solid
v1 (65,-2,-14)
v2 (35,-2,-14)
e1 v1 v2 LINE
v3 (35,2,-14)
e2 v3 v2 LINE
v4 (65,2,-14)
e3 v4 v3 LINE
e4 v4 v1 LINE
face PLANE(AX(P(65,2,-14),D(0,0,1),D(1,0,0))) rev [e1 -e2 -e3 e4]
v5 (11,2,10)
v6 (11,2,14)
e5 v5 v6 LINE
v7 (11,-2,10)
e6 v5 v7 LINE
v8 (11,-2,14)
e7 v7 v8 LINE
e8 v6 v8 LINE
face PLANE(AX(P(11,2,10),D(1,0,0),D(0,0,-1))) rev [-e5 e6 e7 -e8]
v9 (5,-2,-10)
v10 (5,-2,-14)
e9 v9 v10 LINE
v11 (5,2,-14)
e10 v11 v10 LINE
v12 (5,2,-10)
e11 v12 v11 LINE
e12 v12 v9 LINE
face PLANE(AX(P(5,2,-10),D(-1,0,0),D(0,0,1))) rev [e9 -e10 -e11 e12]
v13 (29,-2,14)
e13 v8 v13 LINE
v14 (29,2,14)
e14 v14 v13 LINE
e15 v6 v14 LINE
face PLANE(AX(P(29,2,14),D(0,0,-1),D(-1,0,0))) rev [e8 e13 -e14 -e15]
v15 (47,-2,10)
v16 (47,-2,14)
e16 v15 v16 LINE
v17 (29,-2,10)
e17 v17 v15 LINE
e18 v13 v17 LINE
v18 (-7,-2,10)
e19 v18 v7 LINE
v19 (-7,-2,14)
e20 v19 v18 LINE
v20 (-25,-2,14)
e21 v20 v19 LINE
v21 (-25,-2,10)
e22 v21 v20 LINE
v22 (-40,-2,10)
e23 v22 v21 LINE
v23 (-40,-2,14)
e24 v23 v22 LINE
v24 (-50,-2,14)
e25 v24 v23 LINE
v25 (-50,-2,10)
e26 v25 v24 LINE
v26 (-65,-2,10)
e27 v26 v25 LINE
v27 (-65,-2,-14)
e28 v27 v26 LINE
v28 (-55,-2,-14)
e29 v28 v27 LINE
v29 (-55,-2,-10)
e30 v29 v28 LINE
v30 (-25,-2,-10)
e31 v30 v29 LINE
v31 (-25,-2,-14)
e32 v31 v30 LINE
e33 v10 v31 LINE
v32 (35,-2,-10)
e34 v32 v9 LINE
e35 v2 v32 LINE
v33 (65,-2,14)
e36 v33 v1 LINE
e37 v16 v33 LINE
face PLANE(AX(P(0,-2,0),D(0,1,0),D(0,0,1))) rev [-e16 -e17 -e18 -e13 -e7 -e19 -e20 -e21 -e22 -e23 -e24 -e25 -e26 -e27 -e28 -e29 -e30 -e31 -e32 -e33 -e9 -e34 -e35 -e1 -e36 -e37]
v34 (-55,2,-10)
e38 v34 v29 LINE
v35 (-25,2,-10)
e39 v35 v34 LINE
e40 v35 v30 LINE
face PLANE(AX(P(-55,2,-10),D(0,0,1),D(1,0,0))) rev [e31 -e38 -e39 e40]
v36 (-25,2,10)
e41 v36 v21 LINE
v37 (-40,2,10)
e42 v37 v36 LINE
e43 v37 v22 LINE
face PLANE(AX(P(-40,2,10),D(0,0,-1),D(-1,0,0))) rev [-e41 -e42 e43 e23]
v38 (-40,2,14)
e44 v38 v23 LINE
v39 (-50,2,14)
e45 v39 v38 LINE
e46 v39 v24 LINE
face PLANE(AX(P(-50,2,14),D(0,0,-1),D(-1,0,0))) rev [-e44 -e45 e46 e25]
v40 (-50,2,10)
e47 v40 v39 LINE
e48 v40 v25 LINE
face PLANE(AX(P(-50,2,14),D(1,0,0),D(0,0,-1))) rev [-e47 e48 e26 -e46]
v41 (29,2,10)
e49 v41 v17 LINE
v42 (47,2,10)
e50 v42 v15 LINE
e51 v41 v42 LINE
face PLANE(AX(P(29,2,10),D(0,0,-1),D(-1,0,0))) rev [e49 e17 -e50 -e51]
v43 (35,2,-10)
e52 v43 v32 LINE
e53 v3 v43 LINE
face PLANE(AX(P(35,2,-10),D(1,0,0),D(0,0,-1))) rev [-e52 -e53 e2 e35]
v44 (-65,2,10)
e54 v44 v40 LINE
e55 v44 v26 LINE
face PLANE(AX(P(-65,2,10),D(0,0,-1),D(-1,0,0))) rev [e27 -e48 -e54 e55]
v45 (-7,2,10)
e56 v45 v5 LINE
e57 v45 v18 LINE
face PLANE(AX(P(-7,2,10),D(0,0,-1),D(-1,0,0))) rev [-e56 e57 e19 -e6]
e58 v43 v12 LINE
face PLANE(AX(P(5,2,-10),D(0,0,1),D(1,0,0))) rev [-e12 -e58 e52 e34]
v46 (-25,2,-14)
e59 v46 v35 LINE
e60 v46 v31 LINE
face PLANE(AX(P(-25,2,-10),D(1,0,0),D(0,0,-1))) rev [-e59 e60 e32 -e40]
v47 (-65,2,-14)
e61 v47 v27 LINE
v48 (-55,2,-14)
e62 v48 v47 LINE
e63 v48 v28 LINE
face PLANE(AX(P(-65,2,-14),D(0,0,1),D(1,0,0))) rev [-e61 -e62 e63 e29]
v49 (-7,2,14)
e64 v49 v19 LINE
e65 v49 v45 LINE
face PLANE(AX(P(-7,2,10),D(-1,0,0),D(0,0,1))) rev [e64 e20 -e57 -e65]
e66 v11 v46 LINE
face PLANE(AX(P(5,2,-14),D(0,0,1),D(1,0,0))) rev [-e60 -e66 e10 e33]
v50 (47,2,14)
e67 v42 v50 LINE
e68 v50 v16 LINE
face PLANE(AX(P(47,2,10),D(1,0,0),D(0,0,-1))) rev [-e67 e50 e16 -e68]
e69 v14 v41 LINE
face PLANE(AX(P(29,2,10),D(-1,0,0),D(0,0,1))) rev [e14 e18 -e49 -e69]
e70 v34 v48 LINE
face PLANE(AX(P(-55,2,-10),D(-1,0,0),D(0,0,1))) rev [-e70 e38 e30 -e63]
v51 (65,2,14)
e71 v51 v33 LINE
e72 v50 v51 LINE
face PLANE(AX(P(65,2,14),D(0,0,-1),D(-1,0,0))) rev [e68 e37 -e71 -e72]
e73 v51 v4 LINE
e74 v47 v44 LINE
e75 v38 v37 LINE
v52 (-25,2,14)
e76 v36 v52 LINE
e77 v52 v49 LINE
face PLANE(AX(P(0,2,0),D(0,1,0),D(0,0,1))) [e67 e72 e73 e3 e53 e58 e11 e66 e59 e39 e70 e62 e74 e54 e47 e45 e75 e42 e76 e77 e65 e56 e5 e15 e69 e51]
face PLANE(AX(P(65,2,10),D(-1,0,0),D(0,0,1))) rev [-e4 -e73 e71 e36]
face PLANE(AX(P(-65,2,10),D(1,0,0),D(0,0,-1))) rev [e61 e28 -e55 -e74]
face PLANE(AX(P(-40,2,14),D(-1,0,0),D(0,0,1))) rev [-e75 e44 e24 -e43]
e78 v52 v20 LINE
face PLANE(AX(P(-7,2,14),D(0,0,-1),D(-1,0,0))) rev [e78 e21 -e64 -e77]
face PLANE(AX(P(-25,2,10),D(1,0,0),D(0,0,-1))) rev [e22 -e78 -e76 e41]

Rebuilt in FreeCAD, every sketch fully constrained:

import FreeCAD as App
import Part
import Sketcher

doc = App.newDocument("Part")
body = doc.addObject("PartDesign::Body", "Body")

sketch1 = body.newObject("Sketcher::SketchObject", "Sketch")
sketch1.AttachmentSupport = (doc.getObject("XZ_Plane"), [""])
sketch1.MapMode = "FlatFace"
sketch1.addGeometry([
    Part.LineSegment(App.Vector(-65, 10, 0), App.Vector(-50, 10, 0)),
    Part.LineSegment(App.Vector(-50, 10, 0), App.Vector(-50, 14, 0)),
    Part.LineSegment(App.Vector(-50, 14, 0), App.Vector(-40, 14, 0)),
    Part.LineSegment(App.Vector(-40, 14, 0), App.Vector(-40, 10, 0)),
    Part.LineSegment(App.Vector(-40, 10, 0), App.Vector(-25, 10, 0)),
    Part.LineSegment(App.Vector(-25, 10, 0), App.Vector(-25, 14, 0)),
    Part.LineSegment(App.Vector(-25, 14, 0), App.Vector(-7, 14, 0)),
    Part.LineSegment(App.Vector(-7, 14, 0), App.Vector(-7, 10, 0)),
    Part.LineSegment(App.Vector(-7, 10, 0), App.Vector(11, 10, 0)),
    Part.LineSegment(App.Vector(11, 10, 0), App.Vector(11, 14, 0)),
    Part.LineSegment(App.Vector(11, 14, 0), App.Vector(29, 14, 0)),
    Part.LineSegment(App.Vector(29, 14, 0), App.Vector(29, 10, 0)),
    Part.LineSegment(App.Vector(29, 10, 0), App.Vector(47, 10, 0)),
    Part.LineSegment(App.Vector(47, 10, 0), App.Vector(47, 14, 0)),
    Part.LineSegment(App.Vector(47, 14, 0), App.Vector(65, 14, 0)),
    Part.LineSegment(App.Vector(65, 14, 0), App.Vector(65, -14, 0)),
    Part.LineSegment(App.Vector(65, -14, 0), App.Vector(35, -14, 0)),
    Part.LineSegment(App.Vector(35, -14, 0), App.Vector(35, -10, 0)),
    Part.LineSegment(App.Vector(35, -10, 0), App.Vector(5, -10, 0)),
    Part.LineSegment(App.Vector(5, -10, 0), App.Vector(5, -14, 0)),
    Part.LineSegment(App.Vector(5, -14, 0), App.Vector(-25, -14, 0)),
    Part.LineSegment(App.Vector(-25, -14, 0), App.Vector(-25, -10, 0)),
    Part.LineSegment(App.Vector(-25, -10, 0), App.Vector(-55, -10, 0)),
    Part.LineSegment(App.Vector(-55, -10, 0), App.Vector(-55, -14, 0)),
    Part.LineSegment(App.Vector(-55, -14, 0), App.Vector(-65, -14, 0)),
    Part.LineSegment(App.Vector(-65, -14, 0), App.Vector(-65, 10, 0)),
], False)
sketch1.addConstraint([
    Sketcher.Constraint("Coincident", 0, 2, 1, 1),
    Sketcher.Constraint("Coincident", 1, 2, 2, 1),
    Sketcher.Constraint("Coincident", 2, 2, 3, 1),
    Sketcher.Constraint("Coincident", 3, 2, 4, 1),
    Sketcher.Constraint("Coincident", 4, 2, 5, 1),
    Sketcher.Constraint("Coincident", 5, 2, 6, 1),
    Sketcher.Constraint("Coincident", 6, 2, 7, 1),
    Sketcher.Constraint("Coincident", 7, 2, 8, 1),
    Sketcher.Constraint("Coincident", 8, 2, 9, 1),
    Sketcher.Constraint("Coincident", 9, 2, 10, 1),
    Sketcher.Constraint("Coincident", 10, 2, 11, 1),
    Sketcher.Constraint("Coincident", 11, 2, 12, 1),
    Sketcher.Constraint("Coincident", 12, 2, 13, 1),
    Sketcher.Constraint("Coincident", 13, 2, 14, 1),
    Sketcher.Constraint("Coincident", 14, 2, 15, 1),
    Sketcher.Constraint("Coincident", 15, 2, 16, 1),
    Sketcher.Constraint("Coincident", 16, 2, 17, 1),
    Sketcher.Constraint("Coincident", 17, 2, 18, 1),
    Sketcher.Constraint("Coincident", 18, 2, 19, 1),
    Sketcher.Constraint("Coincident", 19, 2, 20, 1),
    Sketcher.Constraint("Coincident", 20, 2, 21, 1),
    Sketcher.Constraint("Coincident", 21, 2, 22, 1),
    Sketcher.Constraint("Coincident", 22, 2, 23, 1),
    Sketcher.Constraint("Coincident", 23, 2, 24, 1),
    Sketcher.Constraint("Coincident", 24, 2, 25, 1),
    Sketcher.Constraint("Coincident", 25, 2, 0, 1),
    Sketcher.Constraint("Horizontal", 0),
    Sketcher.Constraint("Vertical", 1),
    Sketcher.Constraint("Horizontal", 2),
    Sketcher.Constraint("Vertical", 3),
    Sketcher.Constraint("Horizontal", 4),
    Sketcher.Constraint("Vertical", 5),
    Sketcher.Constraint("Horizontal", 6),
    Sketcher.Constraint("Vertical", 7),
    Sketcher.Constraint("Horizontal", 8),
    Sketcher.Constraint("Vertical", 9),
    Sketcher.Constraint("Horizontal", 10),
    Sketcher.Constraint("Vertical", 11),
    Sketcher.Constraint("Horizontal", 12),
    Sketcher.Constraint("Vertical", 13),
    Sketcher.Constraint("Horizontal", 14),
    Sketcher.Constraint("Vertical", 15),
    Sketcher.Constraint("Horizontal", 16),
    Sketcher.Constraint("Vertical", 17),
    Sketcher.Constraint("Horizontal", 18),
    Sketcher.Constraint("Vertical", 19),
    Sketcher.Constraint("Horizontal", 20),
    Sketcher.Constraint("Vertical", 21),
    Sketcher.Constraint("Horizontal", 22),
    Sketcher.Constraint("Vertical", 23),
    Sketcher.Constraint("Horizontal", 24),
    Sketcher.Constraint("Vertical", 25),
    Sketcher.Constraint("Symmetric", 14, 2, 24, 2, -1, 1),
    Sketcher.Constraint("Symmetric", 5, 2, 20, 2, -1),
    Sketcher.Constraint("Horizontal", 0, 2, 3, 2),
    Sketcher.Constraint("Horizontal", 2, 2, 5, 2),
    Sketcher.Constraint("Horizontal", 4, 2, 7, 2),
    Sketcher.Constraint("Horizontal", 6, 2, 9, 2),
    Sketcher.Constraint("Horizontal", 8, 2, 11, 2),
    Sketcher.Constraint("Horizontal", 10, 2, 13, 2),
    Sketcher.Constraint("Horizontal", 16, 2, 19, 2),
    Sketcher.Constraint("Horizontal", 18, 2, 21, 2),
    Sketcher.Constraint("Equal", 0, 4),
    Sketcher.Constraint("Equal", 6, 8),
    Sketcher.Constraint("Equal", 8, 10),
    Sketcher.Constraint("Equal", 10, 12),
    Sketcher.Constraint("Equal", 12, 14),
    Sketcher.Constraint("Equal", 16, 18),
    Sketcher.Constraint("Equal", 18, 20),
    Sketcher.Constraint("Equal", 20, 22),
    Sketcher.Constraint("Equal", 2, 24),
    Sketcher.Constraint("Equal", 13, 17),
    Sketcher.Constraint("DistanceX", 0, 1, 0, 2, 15.0),
    Sketcher.Constraint("DistanceX", 2, 1, 2, 2, 10.0),
    Sketcher.Constraint("DistanceY", 1, 1, 1, 2, 4.0),
    Sketcher.Constraint("DistanceY", 15, 2, 15, 1, 28.0),
])
pad1 = body.newObject("PartDesign::Pad", "Pad")
pad1.Profile = sketch1
pad1.Length = 4
pad1.Midplane = True

doc.recompute()
